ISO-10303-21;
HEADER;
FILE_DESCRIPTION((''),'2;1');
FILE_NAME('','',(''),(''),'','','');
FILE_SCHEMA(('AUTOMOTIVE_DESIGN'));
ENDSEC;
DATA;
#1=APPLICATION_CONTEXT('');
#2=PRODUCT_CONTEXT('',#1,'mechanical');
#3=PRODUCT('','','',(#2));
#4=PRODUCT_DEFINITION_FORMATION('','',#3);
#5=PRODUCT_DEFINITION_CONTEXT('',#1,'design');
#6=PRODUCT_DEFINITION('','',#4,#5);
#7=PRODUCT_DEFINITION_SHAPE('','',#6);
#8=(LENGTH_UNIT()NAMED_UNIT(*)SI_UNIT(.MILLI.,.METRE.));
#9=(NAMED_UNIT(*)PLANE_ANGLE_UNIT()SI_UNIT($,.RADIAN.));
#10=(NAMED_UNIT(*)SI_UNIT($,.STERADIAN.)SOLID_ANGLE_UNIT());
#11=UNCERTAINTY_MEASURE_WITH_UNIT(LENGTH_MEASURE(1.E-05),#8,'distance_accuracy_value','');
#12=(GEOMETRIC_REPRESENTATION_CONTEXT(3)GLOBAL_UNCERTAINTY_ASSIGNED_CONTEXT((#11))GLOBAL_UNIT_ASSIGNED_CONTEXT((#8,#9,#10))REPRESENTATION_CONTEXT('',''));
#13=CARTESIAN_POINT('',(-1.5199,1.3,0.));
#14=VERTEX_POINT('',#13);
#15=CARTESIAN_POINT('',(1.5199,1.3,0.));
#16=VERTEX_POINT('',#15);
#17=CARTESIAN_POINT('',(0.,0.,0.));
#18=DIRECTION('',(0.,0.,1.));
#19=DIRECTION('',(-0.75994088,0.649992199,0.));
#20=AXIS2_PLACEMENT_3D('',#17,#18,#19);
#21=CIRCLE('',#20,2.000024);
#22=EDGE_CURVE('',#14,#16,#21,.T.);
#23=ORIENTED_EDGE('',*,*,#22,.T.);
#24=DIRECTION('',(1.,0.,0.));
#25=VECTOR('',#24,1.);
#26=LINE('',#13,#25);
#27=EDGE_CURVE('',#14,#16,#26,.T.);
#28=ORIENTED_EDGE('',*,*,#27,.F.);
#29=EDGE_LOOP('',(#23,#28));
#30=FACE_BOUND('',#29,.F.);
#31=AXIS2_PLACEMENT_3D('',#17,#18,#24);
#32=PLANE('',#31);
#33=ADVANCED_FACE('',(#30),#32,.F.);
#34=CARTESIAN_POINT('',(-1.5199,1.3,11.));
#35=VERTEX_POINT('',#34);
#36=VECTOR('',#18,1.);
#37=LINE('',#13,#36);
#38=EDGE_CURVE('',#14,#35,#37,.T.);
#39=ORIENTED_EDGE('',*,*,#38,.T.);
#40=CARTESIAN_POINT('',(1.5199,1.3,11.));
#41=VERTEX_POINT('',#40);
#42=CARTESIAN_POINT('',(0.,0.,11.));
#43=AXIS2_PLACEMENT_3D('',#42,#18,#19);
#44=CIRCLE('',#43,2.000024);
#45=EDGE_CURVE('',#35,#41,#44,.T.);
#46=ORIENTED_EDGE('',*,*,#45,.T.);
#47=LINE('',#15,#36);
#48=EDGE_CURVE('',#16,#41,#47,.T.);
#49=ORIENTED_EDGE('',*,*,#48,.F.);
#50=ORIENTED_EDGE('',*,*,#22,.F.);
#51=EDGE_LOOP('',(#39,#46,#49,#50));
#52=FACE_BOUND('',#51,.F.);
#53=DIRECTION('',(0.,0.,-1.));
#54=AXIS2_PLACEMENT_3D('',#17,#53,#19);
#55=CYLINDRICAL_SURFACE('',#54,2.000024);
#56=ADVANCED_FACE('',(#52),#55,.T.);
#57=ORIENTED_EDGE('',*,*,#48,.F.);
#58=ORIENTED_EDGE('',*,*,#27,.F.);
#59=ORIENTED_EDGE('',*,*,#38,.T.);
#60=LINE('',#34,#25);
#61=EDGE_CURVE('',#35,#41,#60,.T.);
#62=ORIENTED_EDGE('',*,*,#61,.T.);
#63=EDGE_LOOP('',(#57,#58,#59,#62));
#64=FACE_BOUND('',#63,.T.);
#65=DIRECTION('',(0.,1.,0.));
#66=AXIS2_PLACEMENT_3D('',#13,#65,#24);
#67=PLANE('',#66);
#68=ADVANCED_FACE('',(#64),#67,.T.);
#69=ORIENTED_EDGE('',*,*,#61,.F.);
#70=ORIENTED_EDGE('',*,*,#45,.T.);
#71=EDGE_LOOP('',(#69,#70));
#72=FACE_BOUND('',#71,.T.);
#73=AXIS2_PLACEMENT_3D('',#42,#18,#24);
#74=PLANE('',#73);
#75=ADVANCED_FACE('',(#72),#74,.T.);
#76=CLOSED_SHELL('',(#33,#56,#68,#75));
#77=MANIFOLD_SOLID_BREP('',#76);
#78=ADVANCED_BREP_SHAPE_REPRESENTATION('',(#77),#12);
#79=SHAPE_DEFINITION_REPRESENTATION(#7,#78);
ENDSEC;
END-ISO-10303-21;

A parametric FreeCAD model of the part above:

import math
import FreeCAD as App
import Part
import Sketcher

V = App.Vector

doc = App.newDocument("Part")
body = doc.addObject("PartDesign::Body", "Body")

sketch1 = body.newObject("Sketcher::SketchObject", "Sketch")
sketch1.AttachmentSupport = (doc.getObject("XY_Plane"), [""])
sketch1.MapMode = "FlatFace"
sketch1.addGeometry([
    Part.LineSegment(V(1.5, 1.3, 0), V(-1.5, 1.3, 0)),
    Part.ArcOfCircle(Part.Circle(V(0, 0, 0), V(0, 0, 1), 2), math.radians(139), math.radians(401)),
], False)
sketch1.addConstraint([
    Sketcher.Constraint("Coincident", 0, 1, 1, 2),
    Sketcher.Constraint("Coincident", 1, 1, 0, 2),
    Sketcher.Constraint("Horizontal", 0),
    Sketcher.Constraint("Coincident", 1, 3, -1, 1),
    Sketcher.Constraint("Radius", 1, 2.0),
    Sketcher.Constraint("DistanceY", -1, 1, 0, 1, 1.3),
])
pad1 = body.newObject("PartDesign::Pad", "Pad")
pad1.Profile = sketch1
pad1.Length = 11

doc.recompute()
